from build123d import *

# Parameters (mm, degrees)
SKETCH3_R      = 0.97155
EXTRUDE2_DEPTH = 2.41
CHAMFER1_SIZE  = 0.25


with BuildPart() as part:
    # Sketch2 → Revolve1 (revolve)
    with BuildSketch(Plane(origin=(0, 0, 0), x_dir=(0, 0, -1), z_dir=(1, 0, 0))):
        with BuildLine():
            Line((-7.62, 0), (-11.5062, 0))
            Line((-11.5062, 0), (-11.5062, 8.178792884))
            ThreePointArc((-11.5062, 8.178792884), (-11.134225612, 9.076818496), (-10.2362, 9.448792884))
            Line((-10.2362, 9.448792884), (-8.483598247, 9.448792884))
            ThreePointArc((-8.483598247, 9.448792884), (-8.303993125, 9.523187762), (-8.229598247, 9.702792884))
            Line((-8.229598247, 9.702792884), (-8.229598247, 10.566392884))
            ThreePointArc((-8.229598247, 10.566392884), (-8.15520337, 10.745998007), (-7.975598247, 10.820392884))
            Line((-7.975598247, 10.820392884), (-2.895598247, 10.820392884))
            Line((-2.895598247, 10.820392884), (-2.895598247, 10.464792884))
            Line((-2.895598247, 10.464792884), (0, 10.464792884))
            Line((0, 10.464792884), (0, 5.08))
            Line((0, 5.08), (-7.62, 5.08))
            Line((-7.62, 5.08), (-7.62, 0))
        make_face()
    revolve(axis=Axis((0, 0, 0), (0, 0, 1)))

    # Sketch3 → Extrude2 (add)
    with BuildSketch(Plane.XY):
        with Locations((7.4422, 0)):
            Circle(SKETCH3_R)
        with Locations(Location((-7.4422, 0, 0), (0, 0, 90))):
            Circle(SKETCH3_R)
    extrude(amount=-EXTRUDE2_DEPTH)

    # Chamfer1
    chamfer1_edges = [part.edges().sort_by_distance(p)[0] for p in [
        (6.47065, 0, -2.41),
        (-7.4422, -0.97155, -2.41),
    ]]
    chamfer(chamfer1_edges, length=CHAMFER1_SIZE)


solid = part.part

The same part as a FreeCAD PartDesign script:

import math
import FreeCAD as App
import Part
import Sketcher
from FreeCAD import Vector
Q = App.Units.Quantity


def edges_at(feature, points):
    """Names of the edges that pass closest to the given points."""
    edges = feature.Shape.Edges
    near = lambda p: min(range(len(edges)), key=lambda i: edges[i].distToShape(Part.Vertex(*p))[0])
    return sorted({f"Edge{near(p) + 1}" for p in points})

doc = App.newDocument("Part")
body = doc.addObject("PartDesign::Body", "Body")

# Sketch on YZ plane
sketch1 = body.newObject("Sketcher::SketchObject", "Sketch")
sketch1.AttachmentSupport = (doc.getObject("YZ_Plane"), [""])
sketch1.MapMode = "FlatFace"
sketch1.addGeometry(Part.LineSegment(Vector(0, 11.51, 0), Vector(0, 7.62, 0)), False)
sketch1.addGeometry(Part.LineSegment(Vector(0, 7.62, 0), Vector(5.08, 7.62, 0)), False)
sketch1.addGeometry(Part.LineSegment(Vector(5.08, 7.62, 0), Vector(5.08, 0, 0)), False)
sketch1.addGeometry(Part.LineSegment(Vector(5.08, 0, 0), Vector(10.46, 0, 0)), False)
sketch1.addGeometry(Part.LineSegment(Vector(10.46, 0, 0), Vector(10.46, 2.9, 0)), False)
sketch1.addGeometry(Part.LineSegment(Vector(10.46, 2.9, 0), Vector(10.82, 2.9, 0)), False)
sketch1.addGeometry(Part.LineSegment(Vector(10.82, 2.9, 0), Vector(10.82, 7.98, 0)), False)
sketch1.addGeometry(Part.ArcOfCircle(Part.Circle(Vector(10.57, 7.98, 0), Vector(0, 0, 1), 0.25), math.radians(0), math.radians(90)), False)
sketch1.addGeometry(Part.LineSegment(Vector(10.57, 8.23, 0), Vector(9.7, 8.23, 0)), False)
sketch1.addGeometry(Part.ArcOfCircle(Part.Circle(Vector(9.7, 8.48, 0), Vector(0, 0, 1), 0.25), math.radians(-180), math.radians(-90)), False)
sketch1.addGeometry(Part.LineSegment(Vector(9.45, 8.48, 0), Vector(9.45, 10.24, 0)), False)
sketch1.addGeometry(Part.ArcOfCircle(Part.Circle(Vector(8.18, 10.24, 0), Vector(0, 0, 1), 1.27), math.radians(0), math.radians(90)), False)
sketch1.addGeometry(Part.LineSegment(Vector(8.18, 11.51, 0), Vector(0, 11.51, 0)), False)
sketch1.addConstraint(Sketcher.Constraint("Coincident", 0, 2, 1, 1))
sketch1.addConstraint(Sketcher.Constraint("Coincident", 1, 2, 2, 1))
sketch1.addConstraint(Sketcher.Constraint("Coincident", 2, 2, 3, 1))
sketch1.addConstraint(Sketcher.Constraint("Coincident", 3, 2, 4, 1))
sketch1.addConstraint(Sketcher.Constraint("Coincident", 4, 2, 5, 1))
sketch1.addConstraint(Sketcher.Constraint("Coincident", 5, 2, 6, 1))
sketch1.addConstraint(Sketcher.Constraint("Tangent", 6, 2, 7, 1))
sketch1.addConstraint(Sketcher.Constraint("Tangent", 7, 2, 8, 1))
sketch1.addConstraint(Sketcher.Constraint("Tangent", 8, 2, 9, 2))
sketch1.addConstraint(Sketcher.Constraint("Tangent", 9, 1, 10, 1))
sketch1.addConstraint(Sketcher.Constraint("Tangent", 10, 2, 11, 1))
sketch1.addConstraint(Sketcher.Constraint("Tangent", 11, 2, 12, 1))
sketch1.addConstraint(Sketcher.Constraint("Coincident", 12, 2, 0, 1))
sketch1.addConstraint(Sketcher.Constraint("Vertical", 0))
sketch1.addConstraint(Sketcher.Constraint("Horizontal", 1))
sketch1.addConstraint(Sketcher.Constraint("Vertical", 2))
sketch1.addConstraint(Sketcher.Constraint("Horizontal", 3))
sketch1.addConstraint(Sketcher.Constraint("Vertical", 4))
sketch1.addConstraint(Sketcher.Constraint("Horizontal", 5))
sketch1.addConstraint(Sketcher.Constraint("Vertical", 6))
sketch1.addConstraint(Sketcher.Constraint("Horizontal", 8))
sketch1.addConstraint(Sketcher.Constraint("Vertical", 10))
sketch1.addConstraint(Sketcher.Constraint("Horizontal", 12))
sketch1.addConstraint(Sketcher.Constraint("Equal", 7, 9))
sketch1.addConstraint(Sketcher.Constraint("PointOnObject", 0, 2, -2))
sketch1.addConstraint(Sketcher.Constraint("PointOnObject", 2, 2, -1))
sketch1.addConstraint(Sketcher.Constraint("Equal", 1, 6))
sketch1.addConstraint(Sketcher.Constraint("Radius", 7, Q("0.01 in")))
sketch1.addConstraint(Sketcher.Constraint("Radius", 11, Q("0.05 in")))
sketch1.addConstraint(Sketcher.Constraint("DistanceX", 1, 1, 1, 2, Q("0.2 in")))
sketch1.addConstraint(Sketcher.Constraint("DistanceY", 2, 2, 2, 1, Q("0.3 in")))
sketch1.addConstraint(Sketcher.Constraint("DistanceX", 5, 1, 5, 2, Q("0.014 in")))
sketch1.addConstraint(Sketcher.Constraint("DistanceX", 8, 2, 8, 1, Q("0.034 in")))
sketch1.addConstraint(Sketcher.Constraint("DistanceY", 0, 2, 0, 1, Q("0.153 in")))
sketch1.addConstraint(Sketcher.Constraint("DistanceY", 4, 1, 4, 2, Q("0.1139999 in")))
sketch1.addConstraint(Sketcher.Constraint("DistanceX", 3, 1, 3, 2, Q("5.384793 mm")))
revolution = body.newObject("PartDesign::Revolution", "Revolution")
revolution.Profile = sketch1
revolution.ReferenceAxis = (sketch1, ["V_Axis"])
revolution.Angle = 360

# Sketch on XY plane
sketch2 = body.newObject("Sketcher::SketchObject", "Sketch001")
sketch2.AttachmentSupport = (doc.getObject("XY_Plane"), [""])
sketch2.MapMode = "FlatFace"
sketch2.addGeometry(Part.Circle(Vector(7.4, 0, 0), Vector(0, 0, 1), 1), False)
sketch2.addGeometry(Part.Circle(Vector(-7.4, 0, 0), Vector(0, 0, 1), 1), False)
sketch2.addConstraint(Sketcher.Constraint("Equal", 0, 1))
sketch2.addConstraint(Sketcher.Constraint("Symmetric", 0, 3, 1, 3, -1, 1))
sketch2.addConstraint(Sketcher.Constraint("PointOnObject", 0, 3, -1))
sketch2.addConstraint(Sketcher.Constraint("Diameter", 0, Q("0.0765 in")))
sketch2.addConstraint(Sketcher.Constraint("DistanceX", -1, 1, 0, 3, Q("0.293 in")))
pad1 = body.newObject("PartDesign::Pad", "Pad")
pad1.Profile = sketch2
pad1.Length = 2.41
pad1.Reversed = True
doc.recompute()

chamfer = body.newObject("PartDesign::Chamfer", "Chamfer")
chamfer.Base = (pad1, edges_at(pad1, [(6.471, 0, -2.41), (-7.442, -0.972, -2.41)]))
chamfer.Size = 0.25

doc.recompute()
